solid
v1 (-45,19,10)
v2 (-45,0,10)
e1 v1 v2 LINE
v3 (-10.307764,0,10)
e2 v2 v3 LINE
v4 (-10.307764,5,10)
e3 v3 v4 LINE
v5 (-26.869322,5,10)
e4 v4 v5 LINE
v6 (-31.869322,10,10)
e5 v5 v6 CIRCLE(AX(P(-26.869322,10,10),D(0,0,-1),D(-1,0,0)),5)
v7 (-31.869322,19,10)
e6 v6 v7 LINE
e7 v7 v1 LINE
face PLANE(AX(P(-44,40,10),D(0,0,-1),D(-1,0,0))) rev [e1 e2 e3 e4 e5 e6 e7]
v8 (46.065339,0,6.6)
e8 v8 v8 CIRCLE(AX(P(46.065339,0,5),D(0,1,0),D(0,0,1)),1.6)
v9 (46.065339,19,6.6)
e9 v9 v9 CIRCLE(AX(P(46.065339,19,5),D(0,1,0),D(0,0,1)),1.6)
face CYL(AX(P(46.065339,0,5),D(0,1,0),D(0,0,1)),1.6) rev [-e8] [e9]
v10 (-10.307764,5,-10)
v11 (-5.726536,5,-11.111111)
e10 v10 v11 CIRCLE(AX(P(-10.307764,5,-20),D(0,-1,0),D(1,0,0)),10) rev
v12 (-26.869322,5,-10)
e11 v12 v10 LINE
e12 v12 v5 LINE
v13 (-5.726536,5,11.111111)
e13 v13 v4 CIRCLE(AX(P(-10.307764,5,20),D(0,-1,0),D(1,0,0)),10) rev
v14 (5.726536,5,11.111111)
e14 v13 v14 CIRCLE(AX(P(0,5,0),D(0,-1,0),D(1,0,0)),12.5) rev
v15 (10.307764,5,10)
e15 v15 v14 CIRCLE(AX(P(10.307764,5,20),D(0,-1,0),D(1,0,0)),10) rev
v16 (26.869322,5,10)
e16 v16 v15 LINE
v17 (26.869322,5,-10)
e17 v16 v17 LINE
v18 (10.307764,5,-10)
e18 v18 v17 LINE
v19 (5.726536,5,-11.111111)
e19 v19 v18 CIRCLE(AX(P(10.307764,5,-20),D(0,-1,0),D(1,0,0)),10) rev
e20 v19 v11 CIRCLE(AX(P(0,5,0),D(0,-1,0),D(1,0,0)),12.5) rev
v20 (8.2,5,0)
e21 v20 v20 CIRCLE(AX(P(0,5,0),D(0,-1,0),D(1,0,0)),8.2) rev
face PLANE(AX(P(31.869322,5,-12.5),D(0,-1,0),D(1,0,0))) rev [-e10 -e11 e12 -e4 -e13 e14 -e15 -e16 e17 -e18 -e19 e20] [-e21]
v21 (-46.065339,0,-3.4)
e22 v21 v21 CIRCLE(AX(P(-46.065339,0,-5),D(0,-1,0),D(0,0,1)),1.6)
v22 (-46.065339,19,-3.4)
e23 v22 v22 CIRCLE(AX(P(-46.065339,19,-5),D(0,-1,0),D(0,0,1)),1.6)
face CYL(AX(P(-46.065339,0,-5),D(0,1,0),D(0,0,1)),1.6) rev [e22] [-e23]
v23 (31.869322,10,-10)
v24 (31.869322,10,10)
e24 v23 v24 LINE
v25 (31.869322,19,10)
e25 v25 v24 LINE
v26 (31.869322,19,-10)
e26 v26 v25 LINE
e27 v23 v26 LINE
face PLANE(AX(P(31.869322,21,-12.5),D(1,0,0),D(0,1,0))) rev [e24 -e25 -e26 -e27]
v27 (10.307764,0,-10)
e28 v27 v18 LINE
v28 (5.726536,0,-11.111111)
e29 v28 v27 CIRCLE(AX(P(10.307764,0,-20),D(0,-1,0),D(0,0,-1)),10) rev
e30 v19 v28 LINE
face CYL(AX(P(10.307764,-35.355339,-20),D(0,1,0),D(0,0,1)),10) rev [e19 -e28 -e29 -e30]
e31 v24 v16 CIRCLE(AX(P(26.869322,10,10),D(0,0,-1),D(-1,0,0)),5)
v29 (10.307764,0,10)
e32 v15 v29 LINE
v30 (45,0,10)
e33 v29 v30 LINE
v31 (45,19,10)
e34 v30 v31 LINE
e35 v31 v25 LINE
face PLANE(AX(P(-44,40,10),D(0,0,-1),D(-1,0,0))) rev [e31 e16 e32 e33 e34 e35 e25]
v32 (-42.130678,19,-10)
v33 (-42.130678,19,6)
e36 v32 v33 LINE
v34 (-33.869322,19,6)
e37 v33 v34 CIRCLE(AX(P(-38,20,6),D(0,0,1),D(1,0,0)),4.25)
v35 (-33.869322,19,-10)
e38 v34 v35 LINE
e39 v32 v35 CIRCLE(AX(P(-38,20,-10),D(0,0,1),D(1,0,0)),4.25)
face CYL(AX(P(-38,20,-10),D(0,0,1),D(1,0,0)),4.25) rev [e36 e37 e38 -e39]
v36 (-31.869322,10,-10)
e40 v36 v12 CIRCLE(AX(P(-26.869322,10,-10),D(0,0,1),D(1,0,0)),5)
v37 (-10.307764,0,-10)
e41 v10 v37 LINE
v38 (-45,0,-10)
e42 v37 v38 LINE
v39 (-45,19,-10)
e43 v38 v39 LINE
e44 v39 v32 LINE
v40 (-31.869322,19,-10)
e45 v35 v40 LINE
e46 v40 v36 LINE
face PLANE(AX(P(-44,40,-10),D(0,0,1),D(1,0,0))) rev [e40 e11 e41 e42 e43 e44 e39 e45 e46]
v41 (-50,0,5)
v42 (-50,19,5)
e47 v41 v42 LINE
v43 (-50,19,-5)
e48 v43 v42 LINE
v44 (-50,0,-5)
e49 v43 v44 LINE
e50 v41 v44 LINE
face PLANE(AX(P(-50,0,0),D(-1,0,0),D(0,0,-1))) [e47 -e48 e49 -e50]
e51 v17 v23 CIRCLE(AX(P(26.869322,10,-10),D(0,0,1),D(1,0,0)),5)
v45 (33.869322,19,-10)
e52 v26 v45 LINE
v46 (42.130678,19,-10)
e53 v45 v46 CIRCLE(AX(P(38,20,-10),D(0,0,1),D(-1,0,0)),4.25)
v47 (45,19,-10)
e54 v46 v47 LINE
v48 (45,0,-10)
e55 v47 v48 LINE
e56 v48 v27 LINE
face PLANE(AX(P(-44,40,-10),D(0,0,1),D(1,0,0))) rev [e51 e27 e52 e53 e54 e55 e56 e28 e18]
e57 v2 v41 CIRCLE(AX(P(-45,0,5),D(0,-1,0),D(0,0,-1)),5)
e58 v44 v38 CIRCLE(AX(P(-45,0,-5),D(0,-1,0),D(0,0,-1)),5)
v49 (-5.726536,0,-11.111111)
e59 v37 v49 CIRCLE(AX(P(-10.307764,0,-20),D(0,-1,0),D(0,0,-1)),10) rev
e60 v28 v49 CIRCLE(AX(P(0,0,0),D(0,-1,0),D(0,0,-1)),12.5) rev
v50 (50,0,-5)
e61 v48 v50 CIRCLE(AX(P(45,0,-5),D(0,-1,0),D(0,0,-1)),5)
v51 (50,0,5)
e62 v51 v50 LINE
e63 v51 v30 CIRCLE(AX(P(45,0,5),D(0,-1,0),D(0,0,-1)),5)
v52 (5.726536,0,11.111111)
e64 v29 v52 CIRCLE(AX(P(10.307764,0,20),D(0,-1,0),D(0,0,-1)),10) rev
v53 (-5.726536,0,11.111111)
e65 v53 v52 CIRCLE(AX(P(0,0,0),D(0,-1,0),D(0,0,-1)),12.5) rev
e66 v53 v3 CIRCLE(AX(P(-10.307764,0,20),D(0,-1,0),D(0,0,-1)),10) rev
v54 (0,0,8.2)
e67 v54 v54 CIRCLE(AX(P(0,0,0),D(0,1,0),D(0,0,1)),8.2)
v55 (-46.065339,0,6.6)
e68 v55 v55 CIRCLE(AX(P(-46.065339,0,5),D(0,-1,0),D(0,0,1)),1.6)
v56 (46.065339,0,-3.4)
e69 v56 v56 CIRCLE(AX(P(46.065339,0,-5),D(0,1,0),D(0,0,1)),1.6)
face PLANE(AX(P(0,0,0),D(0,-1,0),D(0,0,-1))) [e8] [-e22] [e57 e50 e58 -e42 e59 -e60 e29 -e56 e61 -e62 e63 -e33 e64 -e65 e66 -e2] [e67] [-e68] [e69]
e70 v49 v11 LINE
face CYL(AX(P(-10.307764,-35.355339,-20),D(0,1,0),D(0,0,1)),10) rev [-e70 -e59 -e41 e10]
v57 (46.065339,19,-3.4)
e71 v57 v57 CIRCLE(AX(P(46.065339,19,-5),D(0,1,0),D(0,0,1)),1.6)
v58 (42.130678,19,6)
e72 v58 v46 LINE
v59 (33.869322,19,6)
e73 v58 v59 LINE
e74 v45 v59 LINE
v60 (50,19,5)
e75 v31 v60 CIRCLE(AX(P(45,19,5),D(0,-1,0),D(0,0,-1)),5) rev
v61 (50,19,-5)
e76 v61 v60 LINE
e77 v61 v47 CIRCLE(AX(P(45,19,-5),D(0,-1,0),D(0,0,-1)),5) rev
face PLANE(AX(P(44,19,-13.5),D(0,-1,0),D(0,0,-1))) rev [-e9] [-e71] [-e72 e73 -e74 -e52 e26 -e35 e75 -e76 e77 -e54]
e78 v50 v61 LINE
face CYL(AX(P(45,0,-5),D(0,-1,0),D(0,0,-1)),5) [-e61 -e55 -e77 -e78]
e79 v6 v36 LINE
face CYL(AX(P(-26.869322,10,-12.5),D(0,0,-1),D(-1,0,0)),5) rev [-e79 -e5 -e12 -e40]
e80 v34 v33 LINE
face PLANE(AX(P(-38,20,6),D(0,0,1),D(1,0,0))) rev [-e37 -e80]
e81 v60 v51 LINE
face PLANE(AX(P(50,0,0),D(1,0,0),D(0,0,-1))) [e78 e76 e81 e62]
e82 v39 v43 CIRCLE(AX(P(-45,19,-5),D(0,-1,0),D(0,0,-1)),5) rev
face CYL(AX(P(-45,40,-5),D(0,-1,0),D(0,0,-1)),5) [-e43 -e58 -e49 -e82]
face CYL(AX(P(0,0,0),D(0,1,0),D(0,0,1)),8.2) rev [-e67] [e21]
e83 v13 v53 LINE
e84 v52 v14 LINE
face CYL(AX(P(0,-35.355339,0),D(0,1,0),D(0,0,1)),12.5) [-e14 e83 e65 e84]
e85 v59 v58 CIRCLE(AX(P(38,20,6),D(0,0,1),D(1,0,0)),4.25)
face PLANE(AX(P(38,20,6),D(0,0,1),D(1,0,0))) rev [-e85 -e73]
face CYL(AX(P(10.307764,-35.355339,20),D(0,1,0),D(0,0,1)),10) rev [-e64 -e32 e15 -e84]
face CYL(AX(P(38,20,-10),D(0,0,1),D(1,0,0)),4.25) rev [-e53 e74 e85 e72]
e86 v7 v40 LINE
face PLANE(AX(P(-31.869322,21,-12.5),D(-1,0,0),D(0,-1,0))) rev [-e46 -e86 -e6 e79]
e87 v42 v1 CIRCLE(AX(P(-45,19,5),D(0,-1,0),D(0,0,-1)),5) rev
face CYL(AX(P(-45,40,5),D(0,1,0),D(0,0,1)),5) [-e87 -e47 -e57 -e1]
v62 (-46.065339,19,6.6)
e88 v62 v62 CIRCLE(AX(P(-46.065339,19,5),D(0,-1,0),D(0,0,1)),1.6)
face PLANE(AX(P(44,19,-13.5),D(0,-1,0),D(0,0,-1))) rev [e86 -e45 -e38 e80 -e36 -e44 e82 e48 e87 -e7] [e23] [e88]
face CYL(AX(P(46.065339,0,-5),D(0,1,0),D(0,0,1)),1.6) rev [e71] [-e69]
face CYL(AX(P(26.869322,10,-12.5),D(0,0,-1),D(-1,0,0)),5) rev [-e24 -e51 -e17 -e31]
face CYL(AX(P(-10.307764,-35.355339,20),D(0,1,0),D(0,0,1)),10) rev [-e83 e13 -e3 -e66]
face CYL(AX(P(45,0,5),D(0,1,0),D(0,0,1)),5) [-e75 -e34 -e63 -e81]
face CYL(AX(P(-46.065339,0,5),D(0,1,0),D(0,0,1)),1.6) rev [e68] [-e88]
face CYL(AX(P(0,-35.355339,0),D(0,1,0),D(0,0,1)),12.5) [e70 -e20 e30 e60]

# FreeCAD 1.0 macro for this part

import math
import FreeCAD as App
import Part
import Sketcher
from FreeCAD import Vector
Q = App.Units.Quantity


def edges_at(feature, points):
    """Names of the edges that pass closest to the given points."""
    edges = feature.Shape.Edges
    near = lambda p: min(range(len(edges)), key=lambda i: edges[i].distToShape(Part.Vertex(*p))[0])
    return sorted({f"Edge{near(p) + 1}" for p in points})


def add_polygon(sketch, points):
    """Adds a closed chain of lines whose ends are joined by coincident constraints."""
    first, n = sketch.GeometryCount, len(points)
    for a, b in zip(points, points[1:] + points[:1]):
        sketch.addGeometry(Part.LineSegment(App.Vector(*a, 0), App.Vector(*b, 0)), False)
    for i in range(n):
        sketch.addConstraint(Sketcher.Constraint("Coincident", first + i, 2, first + (i + 1) % n, 1))

doc = App.newDocument("Part")
body = doc.addObject("PartDesign::Body", "Body")

sketch1 = body.newObject("Sketcher::SketchObject", "Sketch")
sketch1.AttachmentSupport = (doc.getObject("XZ_Plane"), [""])
sketch1.MapMode = "FlatFace"
add_polygon(sketch1, [(-44, -10), (-44, 10), (44, 10), (44, -10)])
sketch1.addConstraint([
    Sketcher.Constraint("Vertical", 0),
    Sketcher.Constraint("Horizontal", 1),
    Sketcher.Constraint("Vertical", 2),
    Sketcher.Constraint("Horizontal", 3),
    Sketcher.Constraint("Symmetric", 0, 2, 2, 2, -1, 1),
    Sketcher.Constraint("DistanceX", 1, 1, 1, 2, Q("88 mm")),
    Sketcher.Constraint("DistanceY", 0, 1, 0, 2, Q("20 mm")),
])
pad1 = body.newObject("PartDesign::Pad", "Pad")
pad1.Profile = sketch1
pad1.Length = 40
pad1.Reversed = True

sketch2 = body.newObject("Sketcher::SketchObject", "Sketch001")
sketch2.AttachmentSupport = (doc.getObject("XY_Plane"), [""])
sketch2.MapMode = "FlatFace"
sketch2.AttachmentOffset = App.Placement(Vector(0, 0, 10), App.Rotation())
sketch2.addGeometry([
    Part.Circle(Vector(-38, 20, 0), Vector(0, 0, 1), 4.2),
    Part.Circle(Vector(38, 20, 0), Vector(0, 0, 1), 4.2),
], False)
sketch2.addConstraint([
    Sketcher.Constraint("Equal", 0, 1),
    Sketcher.Constraint("Symmetric", 0, 3, 1, 3, -2),
    Sketcher.Constraint("Diameter", 0, Q("8.5 mm")),
    Sketcher.Constraint("DistanceX", 0, 3, -1, 1, Q("38 mm")),
    Sketcher.Constraint("DistanceY", -1, 1, 0, 3, Q("20 mm")),
])
pocket1 = body.newObject("PartDesign::Pocket", "Pocket")
pocket1.Profile = sketch2
pocket1.Type = "ThroughAll"

sketch3 = body.newObject("Sketcher::SketchObject", "Sketch002")
sketch3.AttachmentSupport = (doc.getObject("XZ_Plane"), [""])
sketch3.MapMode = "FlatFace"
sketch3.AttachmentOffset = App.Placement(Vector(0, 0, -40), App.Rotation())
sketch3.addGeometry(Part.Circle(Vector(0, 0, 0), Vector(0, 0, 1), 12), False)
sketch3.addConstraint([
    Sketcher.Constraint("Coincident", 0, 3, -1, 1),
    Sketcher.Constraint("Diameter", 0, Q("25 mm")),
])
pad2 = body.newObject("PartDesign::Pad", "Pad001")
pad2.Profile = sketch3
pad2.Length = 40

sketch4 = body.newObject("Sketcher::SketchObject", "Sketch003")
sketch4.AttachmentSupport = (doc.getObject("XZ_Plane"), [""])
sketch4.MapMode = "FlatFace"
sketch4.AttachmentOffset = App.Placement(Vector(0, 0, -40), App.Rotation())
sketch4.addGeometry(Part.Circle(Vector(0, 0, 0), Vector(0, 0, 1), 8), False)
sketch4.addConstraint([
    Sketcher.Constraint("Coincident", 0, 3, -1, 1),
    Sketcher.Constraint("Diameter", 0, Q("16.4 mm")),
])
pocket2 = body.newObject("PartDesign::Pocket", "Pocket001")
pocket2.Profile = sketch4
pocket2.Type = "ThroughAll"
pocket2.Reversed = True
doc.recompute()

fillet = body.newObject("PartDesign::Fillet", "Fillet")
fillet.Base = (pocket2, edges_at(pocket2, [
    (7.5, 20, -10),
    (7.5, 20, 10),
    (-7.5, 20, -10),
    (-7.5, 20, 10),
]))
fillet.Radius = 10

sketch5 = body.newObject("Sketcher::SketchObject", "Sketch004")
sketch5.AttachmentSupport = (doc.getObject("YZ_Plane"), [""])
sketch5.MapMode = "FlatFace"
sketch5.AttachmentOffset = App.Placement(Vector(0, 0, -44), App.Rotation())
add_polygon(sketch5, [(40, -14), (19, -14), (19, 14), (40, 14)])
sketch5.addConstraint([
    Sketcher.Constraint("Horizontal", 0),
    Sketcher.Constraint("Vertical", 1),
    Sketcher.Constraint("Horizontal", 2),
    Sketcher.Constraint("Vertical", 3),
    Sketcher.Constraint("DistanceX", 0, 2, 0, 1, Q("21 mm")),
    Sketcher.Constraint("DistanceY", 1, 1, 1, 2, Q("27 mm")),
    Sketcher.Constraint("DistanceX", -1, 1, 0, 2, Q("19 mm")),
    Sketcher.Constraint("DistanceY", 0, 2, -1, 1, Q("13.5 mm")),
])
pocket3 = body.newObject("PartDesign::Pocket", "Pocket002")
pocket3.Profile = sketch5
pocket3.Type = "ThroughAll"
pocket3.Reversed = True

sketch6 = body.newObject("Sketcher::SketchObject", "Sketch005")
sketch6.AttachmentSupport = (doc.getObject("XY_Plane"), [""])
sketch6.MapMode = "FlatFace"
add_polygon(sketch6, [(-32, 21), (-32, 5), (32, 5), (32, 21)])
sketch6.addConstraint([
    Sketcher.Constraint("Vertical", 0),
    Sketcher.Constraint("Horizontal", 1),
    Sketcher.Constraint("Vertical", 2),
    Sketcher.Constraint("Horizontal", 3),
    Sketcher.Constraint("DistanceY", 0, 2, 0, 1, Q("16 mm")),
    Sketcher.Constraint("DistanceY", -1, 1, 0, 2, Q("5 mm")),
    Sketcher.Constraint("DistanceX", 1, 1, 1, 2, Q("63.738644 mm")),
    Sketcher.Constraint("DistanceX", 0, 2, -1, 1, Q("31.869322 mm")),
])
pocket4 = body.newObject("PartDesign::Pocket", "Pocket003")
pocket4.Profile = sketch6
pocket4.Type = "ThroughAll"
pocket4.Midplane = True
doc.recompute()

fillet2 = body.newObject("PartDesign::Fillet", "Fillet001")
fillet2.Base = (pocket4, edges_at(pocket4, [(31.869, 5, 0), (-31.869, 5, 0)]))
fillet2.Radius = 5

sketch7 = body.newObject("Sketcher::SketchObject", "Sketch006")
sketch7.AttachmentSupport = (doc.getObject("YZ_Plane"), [""])
sketch7.MapMode = "FlatFace"
sketch7.AttachmentOffset = App.Placement(Vector(0, 0, 44), App.Rotation())
add_polygon(sketch7, [(19, 10), (0, 10), (0, -10), (19, -10)])
sketch7.addConstraint([
    Sketcher.Constraint("Horizontal", 0),
    Sketcher.Constraint("Vertical", 1),
    Sketcher.Constraint("Horizontal", 2),
    Sketcher.Constraint("Vertical", 3),
    Sketcher.Constraint("Symmetric", 0, 2, 1, 2, -1, 1),
    Sketcher.Constraint("DistanceX", 0, 2, 0, 1, Q("19 mm")),
    Sketcher.Constraint("DistanceY", 1, 2, 1, 1, Q("20 mm")),
])
pad3 = body.newObject("PartDesign::Pad", "Pad002")
pad3.Profile = sketch7
pad3.Length = 6

sketch8 = body.newObject("Sketcher::SketchObject", "Sketch007")
sketch8.AttachmentSupport = (doc.getObject("XZ_Plane"), [""])
sketch8.MapMode = "FlatFace"
sketch8.AttachmentOffset = App.Placement(Vector(0, 0, -19), App.Rotation())
sketch8.addGeometry([
    Part.Circle(Vector(46.1, -5, 0), Vector(0, 0, 1), 1.6),
    Part.Circle(Vector(46.1, 5, 0), Vector(0, 0, 1), 1.6),
], False)
sketch8.addConstraint([
    Sketcher.Constraint("Equal", 0, 1),
    Sketcher.Constraint("Symmetric", 0, 3, 1, 3, -1),
    Sketcher.Constraint("Diameter", 0, Q("3.2 mm")),
    Sketcher.Constraint("DistanceY", 0, 3, -1, 1, Q("5 mm")),
    Sketcher.Constraint("DistanceX", -1, 1, 0, 3, Q("46.065339 mm")),
])
pocket5 = body.newObject("PartDesign::Pocket", "Pocket004")
pocket5.Profile = sketch8
pocket5.Type = "ThroughAll"
pocket5.Reversed = True
doc.recompute()

mirrored = body.newObject("PartDesign::Mirrored", "Mirrored")
mirrored.Originals = [pad3, pocket5]
mirrored.MirrorPlane = (doc.getObject("YZ_Plane"), [""])
body.Tip = mirrored
doc.recompute()

fillet3 = body.newObject("PartDesign::Fillet", "Fillet002")
fillet3.Base = (mirrored, edges_at(mirrored, [
    (50, 9.5, -10),
    (50, 9.5, 10),
    (-50, 9.5, 10),
    (-50, 9.5, -10),
]))
fillet3.Radius = 5

sketch9 = body.newObject("Sketcher::SketchObject", "Sketch008")
sketch9.AttachmentSupport = (doc.getObject("XY_Plane"), [""])
sketch9.MapMode = "FlatFace"
sketch9.AttachmentOffset = App.Placement(Vector(0, 0, 10), App.Rotation())
sketch9.addGeometry([
    Part.LineSegment(Vector(-33.9, 19, 0), Vector(-42.1, 19, 0)),
    Part.ArcOfCircle(Part.Circle(Vector(-38, 20, 0), Vector(0, 0, 1), 4.2), math.radians(-166), math.radians(-14)),
    Part.LineSegment(Vector(42.1, 19, 0), Vector(33.9, 19, 0)),
    Part.ArcOfCircle(Part.Circle(Vector(38, 20, 0), Vector(0, 0, 1), 4.2), math.radians(-166), math.radians(-14)),
], False)
sketch9.addConstraint([
    Sketcher.Constraint("Coincident", 0, 1, 1, 2),
    Sketcher.Constraint("Coincident", 1, 1, 0, 2),
    Sketcher.Constraint("Coincident", 2, 1, 3, 2),
    Sketcher.Constraint("Coincident", 3, 1, 2, 2),
    Sketcher.Constraint("Horizontal", 0),
    Sketcher.Constraint("Horizontal", 2),
    Sketcher.Constraint("Equal", 1, 3),
    Sketcher.Constraint("Symmetric", 1, 3, 3, 3, -2),
    Sketcher.Constraint("Horizontal", 1, 1, 2, 1),
    Sketcher.Constraint("Radius", 1, Q("4.25 mm")),
    Sketcher.Constraint("DistanceX", 1, 3, -1, 1, Q("38 mm")),
    Sketcher.Constraint("DistanceY", -1, 1, 1, 3, Q("20 mm")),
    Sketcher.Constraint("DistanceY", -1, 1, 0, 1, Q("19 mm")),
])
pad4 = body.newObject("PartDesign::Pad", "Pad003")
pad4.Profile = sketch9
pad4.Length = 4
pad4.Reversed = True

doc.recompute()
